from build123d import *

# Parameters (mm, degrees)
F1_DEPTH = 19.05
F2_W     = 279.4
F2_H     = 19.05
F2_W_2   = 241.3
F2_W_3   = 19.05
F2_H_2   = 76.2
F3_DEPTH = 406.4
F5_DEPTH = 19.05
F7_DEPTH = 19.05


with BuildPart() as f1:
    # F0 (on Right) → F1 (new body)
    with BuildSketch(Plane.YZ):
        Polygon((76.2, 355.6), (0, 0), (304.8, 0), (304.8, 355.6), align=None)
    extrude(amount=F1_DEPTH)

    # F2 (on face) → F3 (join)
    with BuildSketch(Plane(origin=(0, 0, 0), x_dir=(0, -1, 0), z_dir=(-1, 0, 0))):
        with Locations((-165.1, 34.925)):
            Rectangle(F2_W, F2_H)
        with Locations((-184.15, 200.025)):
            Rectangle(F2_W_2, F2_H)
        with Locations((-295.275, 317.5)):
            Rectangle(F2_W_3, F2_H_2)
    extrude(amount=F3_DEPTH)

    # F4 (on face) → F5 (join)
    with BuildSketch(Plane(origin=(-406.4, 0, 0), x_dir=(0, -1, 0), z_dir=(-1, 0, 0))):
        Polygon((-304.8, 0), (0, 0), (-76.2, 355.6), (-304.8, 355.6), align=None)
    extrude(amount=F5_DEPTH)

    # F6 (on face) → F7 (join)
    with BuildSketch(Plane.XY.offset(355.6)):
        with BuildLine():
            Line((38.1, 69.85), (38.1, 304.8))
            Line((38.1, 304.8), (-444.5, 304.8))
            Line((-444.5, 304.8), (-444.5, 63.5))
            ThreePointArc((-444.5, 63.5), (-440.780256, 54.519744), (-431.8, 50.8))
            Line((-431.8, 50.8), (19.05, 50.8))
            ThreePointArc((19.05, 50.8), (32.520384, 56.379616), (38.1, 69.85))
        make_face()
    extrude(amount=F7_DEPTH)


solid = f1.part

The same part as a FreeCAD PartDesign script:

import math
import FreeCAD as App
import Part
import Sketcher
Q = App.Units.Quantity

doc = App.newDocument("Part")
body = doc.addObject("PartDesign::Body", "Body")

sketch1 = doc.addObject("Sketcher::SketchObject", "Sketch")
body.addObject(sketch1)
sketch1.AttachmentSupport = (doc.YZ_Plane, [""])
sketch1.MapMode = "FlatFace"
sketch1.addGeometry(Part.LineSegment(App.Vector(76, 356, 0), App.Vector(0, 0, 0)), False)
sketch1.addGeometry(Part.LineSegment(App.Vector(0, 0, 0), App.Vector(305, 0, 0)), False)
sketch1.addGeometry(Part.LineSegment(App.Vector(305, 0, 0), App.Vector(305, 356, 0)), False)
sketch1.addGeometry(Part.LineSegment(App.Vector(305, 356, 0), App.Vector(76, 356, 0)), False)
sketch1.addConstraint(Sketcher.Constraint("Coincident", 0, 2, 1, 1))
sketch1.addConstraint(Sketcher.Constraint("Coincident", 1, 2, 2, 1))
sketch1.addConstraint(Sketcher.Constraint("Coincident", 2, 2, 3, 1))
sketch1.addConstraint(Sketcher.Constraint("Coincident", 3, 2, 0, 1))
sketch1.addConstraint(Sketcher.Constraint("Horizontal", 1))
sketch1.addConstraint(Sketcher.Constraint("Vertical", 2))
sketch1.addConstraint(Sketcher.Constraint("Horizontal", 3))
sketch1.addConstraint(Sketcher.Constraint("Coincident", 0, 2, -1, 1))
sketch1.addConstraint(Sketcher.Constraint("DistanceX", 1, 1, 1, 2, Q("12 in")))
sketch1.addConstraint(Sketcher.Constraint("DistanceX", 3, 2, 3, 1, Q("9 in")))
sketch1.addConstraint(Sketcher.Constraint("DistanceY", 2, 1, 2, 2, Q("14 in")))
pad1 = doc.addObject("PartDesign::Pad", "Pad")
body.addObject(pad1)
pad1.Profile = sketch1
pad1.Length = Q("0.75 in")

sketch2 = doc.addObject("Sketcher::SketchObject", "Sketch001")
body.addObject(sketch2)
sketch2.AttachmentSupport = (doc.YZ_Plane, [""])
sketch2.MapMode = "FlatFace"
sketch2.addGeometry(Part.LineSegment(App.Vector(305, 44, 0), App.Vector(305, 25, 0)), False)
sketch2.addGeometry(Part.LineSegment(App.Vector(305, 25, 0), App.Vector(25, 25, 0)), False)
sketch2.addGeometry(Part.LineSegment(App.Vector(25, 25, 0), App.Vector(25, 44, 0)), False)
sketch2.addGeometry(Part.LineSegment(App.Vector(25, 44, 0), App.Vector(305, 44, 0)), False)
sketch2.addGeometry(Part.LineSegment(App.Vector(305, 210, 0), App.Vector(305, 190, 0)), False)
sketch2.addGeometry(Part.LineSegment(App.Vector(305, 190, 0), App.Vector(64, 190, 0)), False)
sketch2.addGeometry(Part.LineSegment(App.Vector(64, 190, 0), App.Vector(64, 210, 0)), False)
sketch2.addGeometry(Part.LineSegment(App.Vector(64, 210, 0), App.Vector(305, 210, 0)), False)
sketch2.addGeometry(Part.LineSegment(App.Vector(305, 356, 0), App.Vector(305, 279, 0)), False)
sketch2.addGeometry(Part.LineSegment(App.Vector(305, 279, 0), App.Vector(286, 279, 0)), False)
sketch2.addGeometry(Part.LineSegment(App.Vector(286, 279, 0), App.Vector(286, 356, 0)), False)
sketch2.addGeometry(Part.LineSegment(App.Vector(286, 356, 0), App.Vector(305, 356, 0)), False)
sketch2.addConstraint(Sketcher.Constraint("Coincident", 0, 2, 1, 1))
sketch2.addConstraint(Sketcher.Constraint("Coincident", 1, 2, 2, 1))
sketch2.addConstraint(Sketcher.Constraint("Coincident", 2, 2, 3, 1))
sketch2.addConstraint(Sketcher.Constraint("Coincident", 3, 2, 0, 1))
sketch2.addConstraint(Sketcher.Constraint("Coincident", 4, 2, 5, 1))
sketch2.addConstraint(Sketcher.Constraint("Coincident", 5, 2, 6, 1))
sketch2.addConstraint(Sketcher.Constraint("Coincident", 6, 2, 7, 1))
sketch2.addConstraint(Sketcher.Constraint("Coincident", 7, 2, 4, 1))
sketch2.addConstraint(Sketcher.Constraint("Coincident", 8, 2, 9, 1))
sketch2.addConstraint(Sketcher.Constraint("Coincident", 9, 2, 10, 1))
sketch2.addConstraint(Sketcher.Constraint("Coincident", 10, 2, 11, 1))
sketch2.addConstraint(Sketcher.Constraint("Coincident", 11, 2, 8, 1))
sketch2.addConstraint(Sketcher.Constraint("Vertical", 0))
sketch2.addConstraint(Sketcher.Constraint("Horizontal", 1))
sketch2.addConstraint(Sketcher.Constraint("Vertical", 2))
sketch2.addConstraint(Sketcher.Constraint("Horizontal", 3))
sketch2.addConstraint(Sketcher.Constraint("Vertical", 4))
sketch2.addConstraint(Sketcher.Constraint("Horizontal", 5))
sketch2.addConstraint(Sketcher.Constraint("Vertical", 6))
sketch2.addConstraint(Sketcher.Constraint("Horizontal", 7))
sketch2.addConstraint(Sketcher.Constraint("Vertical", 8))
sketch2.addConstraint(Sketcher.Constraint("Horizontal", 9))
sketch2.addConstraint(Sketcher.Constraint("Vertical", 10))
sketch2.addConstraint(Sketcher.Constraint("Horizontal", 11))
sketch2.addConstraint(Sketcher.Constraint("Vertical", 3, 2, 4, 2))
sketch2.addConstraint(Sketcher.Constraint("Vertical", 7, 2, 8, 2))
sketch2.addConstraint(Sketcher.Constraint("Equal", 11, 0))
sketch2.addConstraint(Sketcher.Constraint("Equal", 2, 4))
sketch2.addConstraint(Sketcher.Constraint("DistanceX", 1, 2, 1, 1, Q("11 in")))
sketch2.addConstraint(Sketcher.Constraint("DistanceY", 8, 2, 8, 1, Q("3 in")))
sketch2.addConstraint(Sketcher.Constraint("DistanceX", 5, 2, 5, 1, Q("9.5 in")))
sketch2.addConstraint(Sketcher.Constraint("DistanceX", -1, 1, 0, 2, Q("12 in")))
sketch2.addConstraint(Sketcher.Constraint("DistanceY", -1, 1, 0, 2, Q("1 in")))
sketch2.addConstraint(Sketcher.Constraint("DistanceY", -1, 1, 8, 2, Q("11 in")))
sketch2.addConstraint(Sketcher.Constraint("DistanceX", 9, 2, 9, 1, Q("0.75 in")))
sketch2.addConstraint(Sketcher.Constraint("DistanceY", -1, 1, 4, 2, Q("7.5 in")))
pad2 = doc.addObject("PartDesign::Pad", "Pad001")
body.addObject(pad2)
pad2.Profile = sketch2
pad2.Length = Q("16 in")
pad2.Reversed = True

sketch3 = doc.addObject("Sketcher::SketchObject", "Sketch002")
body.addObject(sketch3)
sketch3.AttachmentSupport = (doc.YZ_Plane, [""])
sketch3.MapMode = "FlatFace"
sketch3.AttachmentOffset = App.Placement(App.Vector(0, 0, -16 * 25.4), App.Rotation())
sketch3.addGeometry(Part.LineSegment(App.Vector(305, 0, 0), App.Vector(0, 0, 0)), False)
sketch3.addGeometry(Part.LineSegment(App.Vector(0, 0, 0), App.Vector(76, 356, 0)), False)
sketch3.addGeometry(Part.LineSegment(App.Vector(76, 356, 0), App.Vector(305, 356, 0)), False)
sketch3.addGeometry(Part.LineSegment(App.Vector(305, 356, 0), App.Vector(305, 0, 0)), False)
sketch3.addConstraint(Sketcher.Constraint("Coincident", 0, 2, 1, 1))
sketch3.addConstraint(Sketcher.Constraint("Coincident", 1, 2, 2, 1))
sketch3.addConstraint(Sketcher.Constraint("Coincident", 2, 2, 3, 1))
sketch3.addConstraint(Sketcher.Constraint("Coincident", 3, 2, 0, 1))
sketch3.addConstraint(Sketcher.Constraint("Horizontal", 0))
sketch3.addConstraint(Sketcher.Constraint("Horizontal", 2))
sketch3.addConstraint(Sketcher.Constraint("Vertical", 3))
sketch3.addConstraint(Sketcher.Constraint("Coincident", 0, 2, -1, 1))
sketch3.addConstraint(Sketcher.Constraint("DistanceX", 0, 2, 0, 1, Q("12 in")))
sketch3.addConstraint(Sketcher.Constraint("DistanceX", 2, 1, 2, 2, Q("9 in")))
sketch3.addConstraint(Sketcher.Constraint("DistanceY", 3, 2, 3, 1, Q("14 in")))
pad3 = doc.addObject("PartDesign::Pad", "Pad002")
body.addObject(pad3)
pad3.Profile = sketch3
pad3.Length = Q("0.75 in")
pad3.Reversed = True

sketch4 = doc.addObject("Sketcher::SketchObject", "Sketch003")
body.addObject(sketch4)
sketch4.AttachmentSupport = (doc.XY_Plane, [""])
sketch4.MapMode = "FlatFace"
sketch4.AttachmentOffset = App.Placement(App.Vector(0, 0, 14 * 25.4), App.Rotation())
sketch4.addGeometry(Part.LineSegment(App.Vector(38, 70, 0), App.Vector(38, 305, 0)), False)
sketch4.addGeometry(Part.LineSegment(App.Vector(38, 305, 0), App.Vector(-444, 305, 0)), False)
sketch4.addGeometry(Part.LineSegment(App.Vector(-444, 305, 0), App.Vector(-444, 64, 0)), False)
sketch4.addGeometry(Part.ArcOfCircle(Part.Circle(App.Vector(-432, 64, 0), App.Vector(0, 0, 1), 13), math.radians(-180), math.radians(-90)), False)
sketch4.addGeometry(Part.LineSegment(App.Vector(-432, 51, 0), App.Vector(19, 51, 0)), False)
sketch4.addGeometry(Part.ArcOfCircle(Part.Circle(App.Vector(19, 70, 0), App.Vector(0, 0, 1), 19), math.radians(-90), math.radians(0)), False)
sketch4.addConstraint(Sketcher.Constraint("Coincident", 0, 2, 1, 1))
sketch4.addConstraint(Sketcher.Constraint("Coincident", 1, 2, 2, 1))
sketch4.addConstraint(Sketcher.Constraint("Tangent", 2, 2, 3, 1))
sketch4.addConstraint(Sketcher.Constraint("Tangent", 3, 2, 4, 1))
sketch4.addConstraint(Sketcher.Constraint("Tangent", 4, 2, 5, 1))
sketch4.addConstraint(Sketcher.Constraint("Tangent", 5, 2, 0, 1))
sketch4.addConstraint(Sketcher.Constraint("Vertical", 0))
sketch4.addConstraint(Sketcher.Constraint("Horizontal", 1))
sketch4.addConstraint(Sketcher.Constraint("Vertical", 2))
sketch4.addConstraint(Sketcher.Constraint("Horizontal", 4))
sketch4.addConstraint(Sketcher.Constraint("Radius", 3, Q("0.5 in")))
sketch4.addConstraint(Sketcher.Constraint("DistanceX", 1, 2, 1, 1, Q("19 in")))
sketch4.addConstraint(Sketcher.Constraint("Radius", 5, Q("0.75 in")))
sketch4.addConstraint(Sketcher.Constraint("DistanceY", 2, 2, 2, 1, Q("9.5 in")))
sketch4.addConstraint(Sketcher.Constraint("DistanceX", 3, 3, -1, 1, Q("17 in")))
sketch4.addConstraint(Sketcher.Constraint("DistanceY", -1, 1, 0, 2, Q("12 in")))
pad4 = doc.addObject("PartDesign::Pad", "Pad003")
body.addObject(pad4)
pad4.Profile = sketch4
pad4.Length = Q("0.75 in")

doc.recompute()
